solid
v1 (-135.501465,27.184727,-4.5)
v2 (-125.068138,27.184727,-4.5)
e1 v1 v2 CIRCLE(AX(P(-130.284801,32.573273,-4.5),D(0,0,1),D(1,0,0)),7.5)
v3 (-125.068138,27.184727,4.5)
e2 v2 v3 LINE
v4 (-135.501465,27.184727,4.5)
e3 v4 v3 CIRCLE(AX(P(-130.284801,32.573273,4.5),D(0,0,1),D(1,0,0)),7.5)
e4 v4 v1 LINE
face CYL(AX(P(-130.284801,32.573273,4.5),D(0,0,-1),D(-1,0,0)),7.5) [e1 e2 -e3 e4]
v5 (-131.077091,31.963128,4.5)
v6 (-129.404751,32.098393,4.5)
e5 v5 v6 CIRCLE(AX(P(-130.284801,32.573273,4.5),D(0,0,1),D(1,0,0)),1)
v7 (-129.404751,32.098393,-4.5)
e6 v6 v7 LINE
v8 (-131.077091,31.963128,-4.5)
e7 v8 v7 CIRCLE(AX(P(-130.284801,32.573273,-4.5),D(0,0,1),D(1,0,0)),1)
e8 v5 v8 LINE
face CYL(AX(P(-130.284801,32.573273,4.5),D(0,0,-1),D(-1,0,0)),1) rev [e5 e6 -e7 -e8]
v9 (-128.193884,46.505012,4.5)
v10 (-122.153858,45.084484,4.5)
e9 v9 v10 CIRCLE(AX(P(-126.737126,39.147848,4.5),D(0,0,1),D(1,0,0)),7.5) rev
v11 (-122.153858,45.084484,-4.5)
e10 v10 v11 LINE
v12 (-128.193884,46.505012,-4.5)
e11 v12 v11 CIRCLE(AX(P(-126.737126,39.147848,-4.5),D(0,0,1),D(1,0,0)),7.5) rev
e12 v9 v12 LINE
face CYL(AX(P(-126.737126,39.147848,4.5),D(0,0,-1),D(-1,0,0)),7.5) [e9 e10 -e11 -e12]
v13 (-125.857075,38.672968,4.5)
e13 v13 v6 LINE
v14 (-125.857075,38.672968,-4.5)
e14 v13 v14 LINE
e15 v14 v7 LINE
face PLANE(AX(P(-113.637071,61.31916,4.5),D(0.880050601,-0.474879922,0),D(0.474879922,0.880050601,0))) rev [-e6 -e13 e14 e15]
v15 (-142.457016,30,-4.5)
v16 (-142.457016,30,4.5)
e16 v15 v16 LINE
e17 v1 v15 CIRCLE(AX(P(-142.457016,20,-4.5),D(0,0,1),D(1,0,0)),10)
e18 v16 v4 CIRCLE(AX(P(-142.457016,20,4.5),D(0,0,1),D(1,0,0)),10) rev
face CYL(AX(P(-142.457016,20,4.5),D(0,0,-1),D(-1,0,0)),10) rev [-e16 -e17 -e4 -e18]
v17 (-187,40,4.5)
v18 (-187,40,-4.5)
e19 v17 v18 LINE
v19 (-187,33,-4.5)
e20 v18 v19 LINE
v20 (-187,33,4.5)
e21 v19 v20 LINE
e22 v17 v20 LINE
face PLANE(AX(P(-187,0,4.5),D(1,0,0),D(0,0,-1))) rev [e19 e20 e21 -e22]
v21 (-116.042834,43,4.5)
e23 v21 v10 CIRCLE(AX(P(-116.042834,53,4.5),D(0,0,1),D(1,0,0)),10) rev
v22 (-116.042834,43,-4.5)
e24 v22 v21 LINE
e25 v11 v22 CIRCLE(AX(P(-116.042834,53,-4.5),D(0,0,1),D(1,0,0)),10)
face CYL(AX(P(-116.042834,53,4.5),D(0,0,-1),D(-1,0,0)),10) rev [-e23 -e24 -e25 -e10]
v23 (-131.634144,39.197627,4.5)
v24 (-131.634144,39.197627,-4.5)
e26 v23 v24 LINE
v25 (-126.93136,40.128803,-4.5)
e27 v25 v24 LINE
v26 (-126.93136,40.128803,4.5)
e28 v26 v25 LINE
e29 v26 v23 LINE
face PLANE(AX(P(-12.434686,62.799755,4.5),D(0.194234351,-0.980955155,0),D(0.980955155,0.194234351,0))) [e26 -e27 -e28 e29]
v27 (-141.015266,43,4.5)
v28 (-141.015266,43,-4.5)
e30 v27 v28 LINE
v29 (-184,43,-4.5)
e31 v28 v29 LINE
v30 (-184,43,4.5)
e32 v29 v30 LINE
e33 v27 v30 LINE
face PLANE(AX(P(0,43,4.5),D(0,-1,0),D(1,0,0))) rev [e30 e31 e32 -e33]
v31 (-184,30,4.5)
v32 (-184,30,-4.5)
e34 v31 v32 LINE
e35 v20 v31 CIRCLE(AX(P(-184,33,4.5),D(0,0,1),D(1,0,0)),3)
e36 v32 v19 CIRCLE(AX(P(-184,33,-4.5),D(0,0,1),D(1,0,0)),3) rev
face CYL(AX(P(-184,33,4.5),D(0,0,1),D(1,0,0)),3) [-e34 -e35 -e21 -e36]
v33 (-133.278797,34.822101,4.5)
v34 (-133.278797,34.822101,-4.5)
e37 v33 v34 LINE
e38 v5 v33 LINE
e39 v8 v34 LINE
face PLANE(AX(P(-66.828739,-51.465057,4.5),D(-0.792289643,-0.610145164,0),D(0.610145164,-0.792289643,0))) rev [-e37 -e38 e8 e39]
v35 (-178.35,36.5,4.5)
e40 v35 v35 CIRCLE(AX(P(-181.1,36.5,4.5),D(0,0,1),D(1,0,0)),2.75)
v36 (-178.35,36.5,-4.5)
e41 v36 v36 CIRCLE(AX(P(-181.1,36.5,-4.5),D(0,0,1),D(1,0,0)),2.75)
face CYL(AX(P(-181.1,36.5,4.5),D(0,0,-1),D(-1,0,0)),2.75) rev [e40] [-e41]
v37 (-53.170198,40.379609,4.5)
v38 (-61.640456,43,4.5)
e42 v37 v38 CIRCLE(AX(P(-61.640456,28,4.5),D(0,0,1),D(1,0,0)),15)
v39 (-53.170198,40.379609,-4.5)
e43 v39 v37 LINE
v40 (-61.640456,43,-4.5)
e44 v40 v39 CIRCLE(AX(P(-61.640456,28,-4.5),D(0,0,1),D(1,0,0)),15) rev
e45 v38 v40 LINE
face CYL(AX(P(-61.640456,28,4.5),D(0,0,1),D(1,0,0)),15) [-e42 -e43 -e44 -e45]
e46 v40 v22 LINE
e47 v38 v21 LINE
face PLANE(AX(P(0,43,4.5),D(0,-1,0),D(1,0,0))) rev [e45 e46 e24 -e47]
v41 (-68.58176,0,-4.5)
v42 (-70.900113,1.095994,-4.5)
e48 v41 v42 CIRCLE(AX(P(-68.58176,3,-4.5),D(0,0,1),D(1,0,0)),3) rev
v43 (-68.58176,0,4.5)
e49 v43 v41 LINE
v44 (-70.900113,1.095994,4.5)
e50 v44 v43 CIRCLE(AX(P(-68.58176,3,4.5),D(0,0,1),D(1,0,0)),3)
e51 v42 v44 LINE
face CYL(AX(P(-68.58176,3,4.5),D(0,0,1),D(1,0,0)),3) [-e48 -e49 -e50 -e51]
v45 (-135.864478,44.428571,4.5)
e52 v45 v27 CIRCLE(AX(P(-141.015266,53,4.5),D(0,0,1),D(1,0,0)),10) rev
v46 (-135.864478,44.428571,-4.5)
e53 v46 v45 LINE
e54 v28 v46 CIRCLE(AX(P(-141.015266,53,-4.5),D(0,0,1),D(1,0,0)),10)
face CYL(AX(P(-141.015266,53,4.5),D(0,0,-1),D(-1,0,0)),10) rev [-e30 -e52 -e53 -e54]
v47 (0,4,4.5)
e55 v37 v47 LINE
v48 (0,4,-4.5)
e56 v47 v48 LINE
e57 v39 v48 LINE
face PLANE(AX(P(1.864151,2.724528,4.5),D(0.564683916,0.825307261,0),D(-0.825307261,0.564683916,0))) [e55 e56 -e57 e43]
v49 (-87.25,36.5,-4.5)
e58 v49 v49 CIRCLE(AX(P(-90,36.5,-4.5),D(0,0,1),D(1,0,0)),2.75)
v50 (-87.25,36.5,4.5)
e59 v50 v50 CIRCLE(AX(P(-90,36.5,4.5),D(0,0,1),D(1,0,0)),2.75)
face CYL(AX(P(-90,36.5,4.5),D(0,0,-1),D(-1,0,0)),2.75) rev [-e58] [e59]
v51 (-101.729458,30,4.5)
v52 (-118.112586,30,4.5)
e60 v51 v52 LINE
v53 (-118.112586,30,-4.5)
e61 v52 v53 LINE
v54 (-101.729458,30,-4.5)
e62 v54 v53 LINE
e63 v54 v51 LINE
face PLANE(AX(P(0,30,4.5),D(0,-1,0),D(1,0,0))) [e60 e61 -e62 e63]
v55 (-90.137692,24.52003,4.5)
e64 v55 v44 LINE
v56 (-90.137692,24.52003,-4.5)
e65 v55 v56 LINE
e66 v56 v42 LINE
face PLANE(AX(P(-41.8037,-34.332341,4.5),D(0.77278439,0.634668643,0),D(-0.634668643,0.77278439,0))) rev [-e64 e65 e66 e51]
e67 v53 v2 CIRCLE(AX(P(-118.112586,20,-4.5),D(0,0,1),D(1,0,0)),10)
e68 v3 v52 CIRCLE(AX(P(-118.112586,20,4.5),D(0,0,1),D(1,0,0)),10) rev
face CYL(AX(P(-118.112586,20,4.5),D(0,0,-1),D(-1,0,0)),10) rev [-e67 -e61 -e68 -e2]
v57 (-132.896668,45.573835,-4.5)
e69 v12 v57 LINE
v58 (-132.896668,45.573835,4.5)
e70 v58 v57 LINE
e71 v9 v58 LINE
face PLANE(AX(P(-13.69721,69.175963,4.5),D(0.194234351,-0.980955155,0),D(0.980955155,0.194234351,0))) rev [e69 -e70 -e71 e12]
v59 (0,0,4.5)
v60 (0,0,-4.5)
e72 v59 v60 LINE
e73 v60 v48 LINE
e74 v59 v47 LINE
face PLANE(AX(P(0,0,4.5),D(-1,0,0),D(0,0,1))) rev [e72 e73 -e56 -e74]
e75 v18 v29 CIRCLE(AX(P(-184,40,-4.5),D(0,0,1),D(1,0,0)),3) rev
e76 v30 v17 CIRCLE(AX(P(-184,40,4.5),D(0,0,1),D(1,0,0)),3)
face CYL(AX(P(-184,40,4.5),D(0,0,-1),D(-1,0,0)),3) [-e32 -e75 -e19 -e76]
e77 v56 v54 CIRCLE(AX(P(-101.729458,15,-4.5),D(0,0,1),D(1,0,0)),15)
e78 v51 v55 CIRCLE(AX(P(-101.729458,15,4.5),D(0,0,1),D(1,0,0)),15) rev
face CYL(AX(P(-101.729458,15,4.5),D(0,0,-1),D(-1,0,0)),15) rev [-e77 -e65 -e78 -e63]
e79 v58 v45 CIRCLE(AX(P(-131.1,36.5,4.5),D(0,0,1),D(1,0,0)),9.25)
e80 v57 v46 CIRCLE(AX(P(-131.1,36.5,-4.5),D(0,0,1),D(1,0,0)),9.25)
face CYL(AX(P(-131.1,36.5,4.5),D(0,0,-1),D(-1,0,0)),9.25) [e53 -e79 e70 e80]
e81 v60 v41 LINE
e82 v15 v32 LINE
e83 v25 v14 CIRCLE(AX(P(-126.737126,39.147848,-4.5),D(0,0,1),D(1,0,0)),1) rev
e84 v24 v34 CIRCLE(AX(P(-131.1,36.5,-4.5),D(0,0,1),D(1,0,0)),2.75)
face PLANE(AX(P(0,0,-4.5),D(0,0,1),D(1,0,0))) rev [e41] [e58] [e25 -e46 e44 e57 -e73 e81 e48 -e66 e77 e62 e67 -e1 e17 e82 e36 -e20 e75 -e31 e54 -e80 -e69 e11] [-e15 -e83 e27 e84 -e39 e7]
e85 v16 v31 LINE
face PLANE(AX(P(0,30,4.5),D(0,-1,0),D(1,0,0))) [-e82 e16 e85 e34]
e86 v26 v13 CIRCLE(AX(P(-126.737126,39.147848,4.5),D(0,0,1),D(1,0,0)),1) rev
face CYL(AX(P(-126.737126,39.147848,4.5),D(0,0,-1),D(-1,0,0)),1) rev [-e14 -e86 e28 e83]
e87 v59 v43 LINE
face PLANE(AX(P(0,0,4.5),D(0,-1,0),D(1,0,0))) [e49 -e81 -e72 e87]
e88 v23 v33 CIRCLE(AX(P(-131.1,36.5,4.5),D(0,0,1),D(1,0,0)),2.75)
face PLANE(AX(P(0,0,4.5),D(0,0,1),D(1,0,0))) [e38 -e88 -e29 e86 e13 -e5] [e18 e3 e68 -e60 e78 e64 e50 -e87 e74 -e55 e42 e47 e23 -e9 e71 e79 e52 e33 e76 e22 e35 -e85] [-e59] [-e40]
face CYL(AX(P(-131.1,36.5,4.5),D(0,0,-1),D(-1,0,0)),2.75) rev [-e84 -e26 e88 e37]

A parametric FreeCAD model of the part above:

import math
import FreeCAD as App
import Part
import Sketcher

V = App.Vector
Q = App.Units.Quantity


def edges_at(feature, points):
    """Names of the edges that pass closest to the given points."""
    edges = feature.Shape.Edges
    near = lambda p: min(range(len(edges)), key=lambda i: edges[i].distToShape(Part.Vertex(*p))[0])
    return sorted({f"Edge{near(p) + 1}" for p in points})

doc = App.newDocument("Part")
body = doc.addObject("PartDesign::Body", "Body")

# Sketch on XY plane
sketch1 = body.newObject("Sketcher::SketchObject", "Sketch")
sketch1.AttachmentSupport = (doc.getObject("XY_Plane"), [""])
sketch1.MapMode = "FlatFace"
sketch1.addGeometry(Part.LineSegment(V(-70, 0, 0), V(0, 0, 0)), False)
sketch1.addGeometry(Part.LineSegment(V(0, 0, 0), V(0, 4, 0)), False)
sketch1.addGeometry(Part.LineSegment(V(0, 4, 0), V(-57, 43, 0)), False)
sketch1.addGeometry(Part.LineSegment(V(-57, 43, 0), V(-120.3, 43, 0)), False)
sketch1.addGeometry(Part.ArcOfCircle(Part.Circle(V(-126.7, 39.1, 0), V(0, 0, 1), 7.5), math.radians(31), math.radians(101)), False)
sketch1.addGeometry(Part.LineSegment(V(-128.2, 46.5, 0), V(-132.9, 45.6, 0)), False)
sketch1.addGeometry(Part.ArcOfCircle(Part.Circle(V(-131.1, 36.5, 0), V(0, 0, 1), 9.3), math.radians(101), math.radians(135)), False)
sketch1.addGeometry(Part.LineSegment(V(-137.7, 43, 0), V(-187, 43, 0)), False)
sketch1.addGeometry(Part.LineSegment(V(-187, 43, 0), V(-187, 30, 0)), False)
sketch1.addGeometry(Part.LineSegment(V(-187, 30, 0), V(-137.8, 30, 0)), False)
sketch1.addGeometry(Part.LineSegment(V(-137.8, 30, 0), V(-136.2, 28, 0)), False)
sketch1.addGeometry(Part.ArcOfCircle(Part.Circle(V(-130.3, 32.6, 0), V(0, 0, 1), 7.5), math.radians(-142), math.radians(-28)), False)
sketch1.addGeometry(Part.LineSegment(V(-123.7, 29, 0), V(-123.2, 30, 0)), False)
sketch1.addGeometry(Part.LineSegment(V(-123.2, 30, 0), V(-94.6, 30, 0)), False)
sketch1.addGeometry(Part.LineSegment(V(-94.6, 30, 0), V(-70, 0, 0)), False)
sketch1.addGeometry(Part.Circle(V(-181.1, 36.5, 0), V(0, 0, 1), 2.8), False)
sketch1.addGeometry(Part.LineSegment(V(-131.1, 32, 0), V(-133.3, 34.8, 0)), False)
sketch1.addGeometry(Part.ArcOfCircle(Part.Circle(V(-131.1, 36.5, 0), V(0, 0, 1), 2.8), math.radians(101), math.radians(218)), False)
sketch1.addGeometry(Part.LineSegment(V(-131.6, 39.2, 0), V(-126.9, 40.1, 0)), False)
sketch1.addGeometry(Part.ArcOfCircle(Part.Circle(V(-126.7, 39.1, 0), V(0, 0, 1), 1), math.radians(-28), math.radians(101)), False)
sketch1.addGeometry(Part.LineSegment(V(-125.9, 38.7, 0), V(-129.4, 32.1, 0)), False)
sketch1.addGeometry(Part.ArcOfCircle(Part.Circle(V(-130.3, 32.6, 0), V(0, 0, 1), 1), math.radians(-142), math.radians(-28)), False)
sketch1.addGeometry(Part.Circle(V(-90, 36.5, 0), V(0, 0, 1), 2.8), False)
sketch1.addConstraint(Sketcher.Constraint("Coincident", 0, 2, 1, 1))
sketch1.addConstraint(Sketcher.Constraint("Coincident", 1, 2, 2, 1))
sketch1.addConstraint(Sketcher.Constraint("Coincident", 2, 2, 3, 1))
sketch1.addConstraint(Sketcher.Constraint("Coincident", 3, 2, 4, 1))
sketch1.addConstraint(Sketcher.Constraint("Tangent", 4, 2, 5, 1))
sketch1.addConstraint(Sketcher.Constraint("Tangent", 5, 2, 6, 1))
sketch1.addConstraint(Sketcher.Constraint("Coincident", 6, 2, 7, 1))
sketch1.addConstraint(Sketcher.Constraint("Coincident", 7, 2, 8, 1))
sketch1.addConstraint(Sketcher.Constraint("Coincident", 8, 2, 9, 1))
sketch1.addConstraint(Sketcher.Constraint("Coincident", 9, 2, 10, 1))
sketch1.addConstraint(Sketcher.Constraint("Tangent", 10, 2, 11, 1))
sketch1.addConstraint(Sketcher.Constraint("Tangent", 11, 2, 12, 1))
sketch1.addConstraint(Sketcher.Constraint("Coincident", 12, 2, 13, 1))
sketch1.addConstraint(Sketcher.Constraint("Coincident", 13, 2, 14, 1))
sketch1.addConstraint(Sketcher.Constraint("Coincident", 14, 2, 0, 1))
sketch1.addConstraint(Sketcher.Constraint("Tangent", 16, 2, 17, 2))
sketch1.addConstraint(Sketcher.Constraint("Tangent", 17, 1, 18, 1))
sketch1.addConstraint(Sketcher.Constraint("Tangent", 18, 2, 19, 2))
sketch1.addConstraint(Sketcher.Constraint("Tangent", 19, 1, 20, 1))
sketch1.addConstraint(Sketcher.Constraint("Tangent", 20, 2, 21, 2))
sketch1.addConstraint(Sketcher.Constraint("Tangent", 21, 1, 16, 1))
sketch1.addConstraint(Sketcher.Constraint("Horizontal", 0))
sketch1.addConstraint(Sketcher.Constraint("Vertical", 1))
sketch1.addConstraint(Sketcher.Constraint("Horizontal", 3))
sketch1.addConstraint(Sketcher.Constraint("Horizontal", 7))
sketch1.addConstraint(Sketcher.Constraint("Vertical", 8))
sketch1.addConstraint(Sketcher.Constraint("Horizontal", 9))
sketch1.addConstraint(Sketcher.Constraint("Horizontal", 13))
sketch1.addConstraint(Sketcher.Constraint("Coincident", 0, 2, -1, 1))
sketch1.addConstraint(Sketcher.Constraint("Coincident", 17, 3, 6, 3))
sketch1.addConstraint(Sketcher.Constraint("Coincident", 19, 3, 4, 3))
sketch1.addConstraint(Sketcher.Constraint("Coincident", 21, 3, 11, 3))
sketch1.addConstraint(Sketcher.Constraint("Equal", 4, 11))
sketch1.addConstraint(Sketcher.Constraint("Equal", 15, 17))
sketch1.addConstraint(Sketcher.Constraint("Equal", 19, 21))
sketch1.addConstraint(Sketcher.Constraint("Equal", 17, 22))
sketch1.addConstraint(Sketcher.Constraint("Parallel", 10, 16))
sketch1.addConstraint(Sketcher.Constraint("Parallel", 5, 18))
sketch1.addConstraint(Sketcher.Constraint("Parallel", 12, 20))
sketch1.addConstraint(Sketcher.Constraint("Horizontal", 6, 3, 15, 3))
sketch1.addConstraint(Sketcher.Constraint("Horizontal", 17, 3, 22, 3))
sketch1.addConstraint(Sketcher.Constraint("Horizontal", 3, 2, 6, 2))
sketch1.addConstraint(Sketcher.Constraint("Horizontal", 9, 2, 12, 2))
sketch1.addConstraint(Sketcher.Constraint("Radius", 19, Q("1 mm")))
sketch1.addConstraint(Sketcher.Constraint("Diameter", 15, Q("5.5 mm")))
sketch1.addConstraint(Sketcher.Constraint("Radius", 4, Q("7.5 mm")))
sketch1.addConstraint(Sketcher.Constraint("DistanceX", 0, 1, 0, 2, Q("70 mm")))
sketch1.addConstraint(Sketcher.Constraint("DistanceY", 1, 1, 1, 2, Q("4 mm")))
sketch1.addConstraint(Sketcher.Constraint("DistanceY", 8, 2, 8, 1, Q("13 mm")))
sketch1.addConstraint(Sketcher.Constraint("DistanceX", 22, 3, -1, 1, Q("90 mm")))
sketch1.addConstraint(Sketcher.Constraint("DistanceX", 2, 2, -1, 1, Q("57 mm")))
sketch1.addConstraint(Sketcher.Constraint("DistanceY", -1, 1, 2, 2, Q("43 mm")))
sketch1.addConstraint(Sketcher.Constraint("DistanceX", 7, 2, -1, 1, Q("187 mm")))
sketch1.addConstraint(Sketcher.Constraint("Angle", 5, Q("-168.8 deg")))
sketch1.addConstraint(Sketcher.Constraint("Angle", 10, Q("-52.4 deg")))
sketch1.addConstraint(Sketcher.Constraint("DistanceX", 15, 3, 6, 3, Q("50 mm")))
sketch1.addConstraint(Sketcher.Constraint("DistanceX", 6, 3, -1, 1, Q("131.1 mm")))
sketch1.addConstraint(Sketcher.Constraint("DistanceY", -1, 1, 6, 3, Q("36.5 mm")))
sketch1.addConstraint(Sketcher.Constraint("DistanceX", 13, 1, 13, 2, Q("28.51286 mm")))
sketch1.addConstraint(Sketcher.Constraint("DistanceX", 11, 3, -1, 1, Q("130.284801 mm")))
sketch1.addConstraint(Sketcher.Constraint("DistanceY", 11, 2, 11, 3, Q("3.561599 mm")))
pad1 = body.newObject("PartDesign::Pad", "Pad")
pad1.Profile = sketch1
pad1.Length = 9
pad1.Midplane = True
doc.recompute()

fillet = body.newObject("PartDesign::Fillet", "Fillet")
fillet.Base = (pad1, edges_at(pad1, [(-57, 43, 0), (-94.638, 30, 0)]))
fillet.Radius = 15
doc.recompute()

fillet2 = body.newObject("PartDesign::Fillet", "Fillet001")
fillet2.Base = (fillet, edges_at(fillet, [
    (-120.302, 43, 0),
    (-137.681, 43, 0),
    (-137.769, 30, 0),
    (-123.151, 30, 0),
]))
fillet2.Radius = 10
doc.recompute()

fillet3 = body.newObject("PartDesign::Fillet", "Fillet002")
fillet3.Base = (fillet2, edges_at(fillet2, [(-70, 0, 0), (-187, 30, 0), (-187, 43, 0)]))
fillet3.Radius = 3

doc.recompute()
